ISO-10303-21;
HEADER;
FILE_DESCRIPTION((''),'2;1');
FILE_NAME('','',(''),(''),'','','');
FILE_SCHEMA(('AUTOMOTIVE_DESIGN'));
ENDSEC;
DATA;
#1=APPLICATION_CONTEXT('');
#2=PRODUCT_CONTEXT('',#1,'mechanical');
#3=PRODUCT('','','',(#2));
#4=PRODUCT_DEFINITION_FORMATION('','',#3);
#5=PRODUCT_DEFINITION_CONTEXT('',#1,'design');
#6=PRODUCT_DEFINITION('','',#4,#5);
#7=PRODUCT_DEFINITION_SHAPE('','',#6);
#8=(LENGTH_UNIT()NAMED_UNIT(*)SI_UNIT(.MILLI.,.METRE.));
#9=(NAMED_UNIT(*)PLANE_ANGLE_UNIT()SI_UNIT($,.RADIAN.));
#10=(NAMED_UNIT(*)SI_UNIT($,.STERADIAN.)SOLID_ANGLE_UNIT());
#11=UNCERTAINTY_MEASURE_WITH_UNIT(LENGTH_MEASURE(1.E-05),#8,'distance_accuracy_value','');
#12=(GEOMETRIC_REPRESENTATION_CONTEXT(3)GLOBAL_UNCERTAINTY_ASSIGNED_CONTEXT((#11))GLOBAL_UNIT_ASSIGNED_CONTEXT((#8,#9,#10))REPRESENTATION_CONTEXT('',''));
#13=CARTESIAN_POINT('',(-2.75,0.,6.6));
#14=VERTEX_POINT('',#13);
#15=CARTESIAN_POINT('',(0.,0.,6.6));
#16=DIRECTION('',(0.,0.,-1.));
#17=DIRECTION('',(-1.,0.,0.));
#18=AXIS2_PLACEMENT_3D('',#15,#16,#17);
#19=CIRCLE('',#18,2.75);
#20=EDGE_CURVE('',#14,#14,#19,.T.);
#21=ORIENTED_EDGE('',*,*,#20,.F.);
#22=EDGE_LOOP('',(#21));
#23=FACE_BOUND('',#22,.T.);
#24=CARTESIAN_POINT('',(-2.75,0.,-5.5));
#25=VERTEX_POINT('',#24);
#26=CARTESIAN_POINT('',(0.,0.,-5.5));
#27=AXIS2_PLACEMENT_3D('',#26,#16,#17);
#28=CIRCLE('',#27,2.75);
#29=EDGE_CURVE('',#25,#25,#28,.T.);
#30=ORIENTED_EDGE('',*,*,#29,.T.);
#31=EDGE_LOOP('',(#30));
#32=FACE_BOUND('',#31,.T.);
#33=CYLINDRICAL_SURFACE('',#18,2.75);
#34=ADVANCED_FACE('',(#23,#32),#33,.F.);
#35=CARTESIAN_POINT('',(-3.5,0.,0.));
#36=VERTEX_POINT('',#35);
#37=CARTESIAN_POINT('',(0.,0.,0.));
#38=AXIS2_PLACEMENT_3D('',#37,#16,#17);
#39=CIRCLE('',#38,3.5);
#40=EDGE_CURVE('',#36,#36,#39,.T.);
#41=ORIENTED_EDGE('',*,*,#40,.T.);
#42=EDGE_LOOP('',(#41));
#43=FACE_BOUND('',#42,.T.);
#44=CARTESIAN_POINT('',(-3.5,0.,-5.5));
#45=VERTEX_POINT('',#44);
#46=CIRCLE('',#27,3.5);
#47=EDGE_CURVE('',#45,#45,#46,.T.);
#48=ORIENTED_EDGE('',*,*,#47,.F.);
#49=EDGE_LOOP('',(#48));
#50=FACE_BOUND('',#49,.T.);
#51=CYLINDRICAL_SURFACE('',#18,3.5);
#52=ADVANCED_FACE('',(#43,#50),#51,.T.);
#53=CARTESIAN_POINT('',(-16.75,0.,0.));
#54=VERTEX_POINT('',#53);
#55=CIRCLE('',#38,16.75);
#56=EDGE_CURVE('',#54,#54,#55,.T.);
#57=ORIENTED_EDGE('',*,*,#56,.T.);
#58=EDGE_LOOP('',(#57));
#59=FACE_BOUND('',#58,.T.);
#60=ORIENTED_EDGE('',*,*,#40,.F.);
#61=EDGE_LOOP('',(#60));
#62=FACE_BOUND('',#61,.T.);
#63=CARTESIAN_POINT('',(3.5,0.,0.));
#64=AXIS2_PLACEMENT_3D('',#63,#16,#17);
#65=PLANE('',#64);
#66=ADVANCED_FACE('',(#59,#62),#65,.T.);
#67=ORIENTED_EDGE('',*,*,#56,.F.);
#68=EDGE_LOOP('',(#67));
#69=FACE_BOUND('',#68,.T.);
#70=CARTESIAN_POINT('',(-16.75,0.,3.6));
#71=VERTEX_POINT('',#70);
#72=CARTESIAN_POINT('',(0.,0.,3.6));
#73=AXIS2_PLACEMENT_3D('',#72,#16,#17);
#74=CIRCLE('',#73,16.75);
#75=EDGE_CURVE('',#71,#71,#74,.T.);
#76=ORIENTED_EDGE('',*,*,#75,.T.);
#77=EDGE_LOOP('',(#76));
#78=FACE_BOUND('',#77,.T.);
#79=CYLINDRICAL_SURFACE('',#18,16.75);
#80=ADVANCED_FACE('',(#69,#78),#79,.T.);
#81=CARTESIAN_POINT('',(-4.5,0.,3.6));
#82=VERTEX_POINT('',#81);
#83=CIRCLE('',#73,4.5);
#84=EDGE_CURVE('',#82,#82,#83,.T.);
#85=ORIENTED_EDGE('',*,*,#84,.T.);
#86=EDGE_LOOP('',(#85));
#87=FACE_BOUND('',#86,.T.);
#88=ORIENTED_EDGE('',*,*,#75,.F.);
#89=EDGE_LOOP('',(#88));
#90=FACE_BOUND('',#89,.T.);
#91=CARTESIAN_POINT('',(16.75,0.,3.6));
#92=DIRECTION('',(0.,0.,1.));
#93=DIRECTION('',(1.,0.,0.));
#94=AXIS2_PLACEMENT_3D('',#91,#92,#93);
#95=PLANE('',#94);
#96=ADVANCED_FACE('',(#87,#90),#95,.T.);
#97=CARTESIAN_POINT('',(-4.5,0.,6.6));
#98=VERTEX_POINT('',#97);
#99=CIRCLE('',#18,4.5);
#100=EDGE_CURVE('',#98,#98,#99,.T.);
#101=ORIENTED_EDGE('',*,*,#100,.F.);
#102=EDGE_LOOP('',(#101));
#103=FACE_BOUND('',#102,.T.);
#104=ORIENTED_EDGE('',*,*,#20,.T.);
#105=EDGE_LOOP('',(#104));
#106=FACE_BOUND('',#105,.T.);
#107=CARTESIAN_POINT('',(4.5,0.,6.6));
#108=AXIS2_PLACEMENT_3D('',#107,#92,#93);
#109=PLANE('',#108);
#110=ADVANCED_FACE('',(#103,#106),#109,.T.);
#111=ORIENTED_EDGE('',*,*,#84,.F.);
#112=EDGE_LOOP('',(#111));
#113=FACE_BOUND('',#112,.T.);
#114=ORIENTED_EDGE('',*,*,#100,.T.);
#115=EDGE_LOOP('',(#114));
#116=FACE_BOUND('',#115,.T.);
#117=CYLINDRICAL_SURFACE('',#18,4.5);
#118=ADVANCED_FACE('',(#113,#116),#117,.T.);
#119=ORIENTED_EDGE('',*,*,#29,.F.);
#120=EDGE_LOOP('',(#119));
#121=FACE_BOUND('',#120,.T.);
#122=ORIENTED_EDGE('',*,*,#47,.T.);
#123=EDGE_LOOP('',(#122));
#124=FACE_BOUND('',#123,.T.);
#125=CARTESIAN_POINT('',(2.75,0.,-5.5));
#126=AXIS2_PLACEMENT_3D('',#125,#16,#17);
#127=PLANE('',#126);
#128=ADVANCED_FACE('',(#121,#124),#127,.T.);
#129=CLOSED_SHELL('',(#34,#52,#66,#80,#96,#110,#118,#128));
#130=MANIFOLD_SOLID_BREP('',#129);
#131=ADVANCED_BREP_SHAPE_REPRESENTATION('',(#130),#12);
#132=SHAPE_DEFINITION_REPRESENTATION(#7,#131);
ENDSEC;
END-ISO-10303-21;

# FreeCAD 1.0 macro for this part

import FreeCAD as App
import Part
import Sketcher

doc = App.newDocument("Part")
body = doc.addObject("PartDesign::Body", "Body")

# Sketch on XZ plane
sketch1 = body.newObject("Sketcher::SketchObject", "Sketch")
sketch1.AttachmentSupport = (doc.getObject("XZ_Plane"), [""])
sketch1.MapMode = "FlatFace"
sketch1.addGeometry(Part.LineSegment(App.Vector(4.5, 6.6, 0), App.Vector(2.8, 6.6, 0)), False)
sketch1.addGeometry(Part.LineSegment(App.Vector(2.8, 6.6, 0), App.Vector(2.8, -5.5, 0)), False)
sketch1.addGeometry(Part.LineSegment(App.Vector(2.8, -5.5, 0), App.Vector(3.5, -5.5, 0)), False)
sketch1.addGeometry(Part.LineSegment(App.Vector(3.5, -5.5, 0), App.Vector(3.5, 0, 0)), False)
sketch1.addGeometry(Part.LineSegment(App.Vector(3.5, 0, 0), App.Vector(16.8, 0, 0)), False)
sketch1.addGeometry(Part.LineSegment(App.Vector(16.8, 0, 0), App.Vector(16.8, 3.6, 0)), False)
sketch1.addGeometry(Part.LineSegment(App.Vector(16.8, 3.6, 0), App.Vector(4.5, 3.6, 0)), False)
sketch1.addGeometry(Part.LineSegment(App.Vector(4.5, 3.6, 0), App.Vector(4.5, 6.6, 0)), False)
sketch1.addConstraint(Sketcher.Constraint("Coincident", 0, 2, 1, 1))
sketch1.addConstraint(Sketcher.Constraint("Coincident", 1, 2, 2, 1))
sketch1.addConstraint(Sketcher.Constraint("Coincident", 2, 2, 3, 1))
sketch1.addConstraint(Sketcher.Constraint("Coincident", 3, 2, 4, 1))
sketch1.addConstraint(Sketcher.Constraint("Coincident", 4, 2, 5, 1))
sketch1.addConstraint(Sketcher.Constraint("Coincident", 5, 2, 6, 1))
sketch1.addConstraint(Sketcher.Constraint("Coincident", 6, 2, 7, 1))
sketch1.addConstraint(Sketcher.Constraint("Coincident", 7, 2, 0, 1))
sketch1.addConstraint(Sketcher.Constraint("Horizontal", 0))
sketch1.addConstraint(Sketcher.Constraint("Vertical", 1))
sketch1.addConstraint(Sketcher.Constraint("Horizontal", 2))
sketch1.addConstraint(Sketcher.Constraint("Vertical", 3))
sketch1.addConstraint(Sketcher.Constraint("Horizontal", 4))
sketch1.addConstraint(Sketcher.Constraint("Vertical", 5))
sketch1.addConstraint(Sketcher.Constraint("Horizontal", 6))
sketch1.addConstraint(Sketcher.Constraint("Vertical", 7))
sketch1.addConstraint(Sketcher.Constraint("PointOnObject", 3, 2, -1))
sketch1.addConstraint(Sketcher.Constraint("DistanceY", 7, 1, 7, 2, 3.0))
sketch1.addConstraint(Sketcher.Constraint("DistanceY", 1, 2, 1, 1, 12.1))
sketch1.addConstraint(Sketcher.Constraint("DistanceY", 3, 1, 3, 2, 5.5))
sketch1.addConstraint(Sketcher.Constraint("DistanceX", 1, 2, 4, 2, 14.0))
sketch1.addConstraint(Sketcher.Constraint("DistanceX", 3, 2, 6, 2, 1.0))
sketch1.addConstraint(Sketcher.Constraint("DistanceX", 0, 2, 0, 1, 1.75))
sketch1.addConstraint(Sketcher.Constraint("DistanceX", -1, 1, 2, 2, 3.5))
revolution = body.newObject("PartDesign::Revolution", "Revolution")
revolution.Profile = sketch1
revolution.ReferenceAxis = (sketch1, ["V_Axis"])
revolution.Angle = 360

doc.recompute()
